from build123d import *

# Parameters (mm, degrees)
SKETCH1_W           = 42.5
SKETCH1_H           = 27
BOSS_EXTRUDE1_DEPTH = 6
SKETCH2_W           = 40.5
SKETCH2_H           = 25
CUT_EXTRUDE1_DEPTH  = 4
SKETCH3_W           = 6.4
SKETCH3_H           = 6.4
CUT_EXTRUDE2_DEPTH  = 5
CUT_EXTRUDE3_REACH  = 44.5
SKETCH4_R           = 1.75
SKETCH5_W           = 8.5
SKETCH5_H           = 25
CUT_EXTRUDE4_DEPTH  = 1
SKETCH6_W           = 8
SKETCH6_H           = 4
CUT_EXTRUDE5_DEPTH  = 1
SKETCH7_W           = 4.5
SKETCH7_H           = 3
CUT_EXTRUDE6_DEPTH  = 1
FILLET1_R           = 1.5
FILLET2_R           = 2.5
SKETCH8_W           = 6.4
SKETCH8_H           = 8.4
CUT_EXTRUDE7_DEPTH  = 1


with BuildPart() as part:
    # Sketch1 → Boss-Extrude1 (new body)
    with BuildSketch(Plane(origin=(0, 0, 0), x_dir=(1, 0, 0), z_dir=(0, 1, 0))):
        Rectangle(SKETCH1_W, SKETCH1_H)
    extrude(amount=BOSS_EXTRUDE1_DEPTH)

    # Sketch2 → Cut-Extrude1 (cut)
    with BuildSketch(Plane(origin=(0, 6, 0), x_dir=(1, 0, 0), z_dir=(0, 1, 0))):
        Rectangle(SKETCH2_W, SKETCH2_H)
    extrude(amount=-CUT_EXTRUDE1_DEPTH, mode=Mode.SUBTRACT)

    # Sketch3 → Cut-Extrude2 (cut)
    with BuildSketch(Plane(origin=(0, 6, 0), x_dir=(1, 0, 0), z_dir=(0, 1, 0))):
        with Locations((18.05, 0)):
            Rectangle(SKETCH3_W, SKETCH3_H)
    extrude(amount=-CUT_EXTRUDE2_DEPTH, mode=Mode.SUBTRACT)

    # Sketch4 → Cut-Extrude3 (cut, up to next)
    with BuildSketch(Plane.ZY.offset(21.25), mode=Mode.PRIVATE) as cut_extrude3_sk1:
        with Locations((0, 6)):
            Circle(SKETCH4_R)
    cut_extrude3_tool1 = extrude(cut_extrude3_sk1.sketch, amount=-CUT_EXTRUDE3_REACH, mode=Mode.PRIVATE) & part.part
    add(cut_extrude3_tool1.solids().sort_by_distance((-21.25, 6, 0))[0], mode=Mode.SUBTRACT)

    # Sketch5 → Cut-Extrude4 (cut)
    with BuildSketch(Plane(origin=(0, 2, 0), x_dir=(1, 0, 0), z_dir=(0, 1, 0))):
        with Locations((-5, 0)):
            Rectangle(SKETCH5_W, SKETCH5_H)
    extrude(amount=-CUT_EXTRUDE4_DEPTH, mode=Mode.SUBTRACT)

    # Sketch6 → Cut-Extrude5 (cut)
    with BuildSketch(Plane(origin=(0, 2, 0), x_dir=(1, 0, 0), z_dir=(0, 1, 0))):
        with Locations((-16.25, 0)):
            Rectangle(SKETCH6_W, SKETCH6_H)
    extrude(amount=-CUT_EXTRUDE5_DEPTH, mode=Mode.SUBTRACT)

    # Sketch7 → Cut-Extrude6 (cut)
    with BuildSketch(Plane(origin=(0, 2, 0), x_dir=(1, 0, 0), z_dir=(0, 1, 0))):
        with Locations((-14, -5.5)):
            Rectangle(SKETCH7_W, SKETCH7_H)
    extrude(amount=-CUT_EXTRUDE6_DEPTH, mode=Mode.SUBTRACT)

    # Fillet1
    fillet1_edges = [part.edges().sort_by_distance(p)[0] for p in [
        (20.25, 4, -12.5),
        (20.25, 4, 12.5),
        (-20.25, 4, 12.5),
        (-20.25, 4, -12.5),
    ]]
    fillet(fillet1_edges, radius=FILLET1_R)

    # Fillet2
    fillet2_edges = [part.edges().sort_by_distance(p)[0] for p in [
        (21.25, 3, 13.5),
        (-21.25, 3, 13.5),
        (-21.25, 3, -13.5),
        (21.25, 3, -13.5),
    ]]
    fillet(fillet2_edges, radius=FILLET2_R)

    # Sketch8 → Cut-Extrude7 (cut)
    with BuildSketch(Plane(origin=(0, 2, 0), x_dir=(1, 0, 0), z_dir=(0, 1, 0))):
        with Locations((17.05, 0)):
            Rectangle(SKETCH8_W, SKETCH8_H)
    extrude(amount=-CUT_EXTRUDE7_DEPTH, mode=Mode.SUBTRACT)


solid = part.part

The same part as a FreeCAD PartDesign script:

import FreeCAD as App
import Part
import Sketcher
from FreeCAD import Vector


def edges_at(feature, points):
    """Names of the edges that pass closest to the given points."""
    edges = feature.Shape.Edges
    near = lambda p: min(range(len(edges)), key=lambda i: edges[i].distToShape(Part.Vertex(*p))[0])
    return sorted({f"Edge{near(p) + 1}" for p in points})


def add_polygon(sketch, points):
    """Adds a closed chain of lines whose ends are joined by coincident constraints."""
    first, n = sketch.GeometryCount, len(points)
    for a, b in zip(points, points[1:] + points[:1]):
        sketch.addGeometry(Part.LineSegment(App.Vector(*a, 0), App.Vector(*b, 0)), False)
    for i in range(n):
        sketch.addConstraint(Sketcher.Constraint("Coincident", first + i, 2, first + (i + 1) % n, 1))

doc = App.newDocument("Part")
body = doc.addObject("PartDesign::Body", "Body")

# Sketch on XZ plane
sketch1 = body.newObject("Sketcher::SketchObject", "Sketch")
sketch1.AttachmentSupport = (doc.getObject("XZ_Plane"), [""])
sketch1.MapMode = "FlatFace"
add_polygon(sketch1, [(-21, -14), (-21, 14), (21, 14), (21, -14)])  # lines 0-3
sketch1.addConstraint(Sketcher.Constraint("Vertical", 0))
sketch1.addConstraint(Sketcher.Constraint("Horizontal", 1))
sketch1.addConstraint(Sketcher.Constraint("Vertical", 2))
sketch1.addConstraint(Sketcher.Constraint("Horizontal", 3))
sketch1.addConstraint(Sketcher.Constraint("Symmetric", 0, 2, 2, 2, -1, 1))
sketch1.addConstraint(Sketcher.Constraint("DistanceY", 0, 1, 0, 2, 27.0))
sketch1.addConstraint(Sketcher.Constraint("DistanceX", 1, 1, 1, 2, 42.5))
pad1 = body.newObject("PartDesign::Pad", "Pad")
pad1.Profile = sketch1
pad1.Length = 6
pad1.Reversed = True

# Sketch on XZ plane
sketch2 = body.newObject("Sketcher::SketchObject", "Sketch001")
sketch2.AttachmentSupport = (doc.getObject("XZ_Plane"), [""])
sketch2.MapMode = "FlatFace"
sketch2.AttachmentOffset = App.Placement(Vector(0, 0, -6), App.Rotation())
add_polygon(sketch2, [(-20, -12), (-20, 12), (20, 12), (20, -12)])  # lines 0-3
sketch2.addConstraint(Sketcher.Constraint("Vertical", 0))
sketch2.addConstraint(Sketcher.Constraint("Horizontal", 1))
sketch2.addConstraint(Sketcher.Constraint("Vertical", 2))
sketch2.addConstraint(Sketcher.Constraint("Horizontal", 3))
sketch2.addConstraint(Sketcher.Constraint("Symmetric", 0, 2, 2, 2, -1, 1))
sketch2.addConstraint(Sketcher.Constraint("DistanceY", 0, 1, 0, 2, 25.0))
sketch2.addConstraint(Sketcher.Constraint("DistanceX", 1, 1, 1, 2, 40.5))
pocket1 = body.newObject("PartDesign::Pocket", "Pocket")
pocket1.Profile = sketch2
pocket1.Length = 4
pocket1.Reversed = True

# Sketch on XZ plane
sketch3 = body.newObject("Sketcher::SketchObject", "Sketch002")
sketch3.AttachmentSupport = (doc.getObject("XZ_Plane"), [""])
sketch3.MapMode = "FlatFace"
sketch3.AttachmentOffset = App.Placement(Vector(0, 0, -6), App.Rotation())
add_polygon(sketch3, [(15, -3), (15, 3), (21, 3), (21, -3)])  # lines 0-3
sketch3.addConstraint(Sketcher.Constraint("Vertical", 0))
sketch3.addConstraint(Sketcher.Constraint("Horizontal", 1))
sketch3.addConstraint(Sketcher.Constraint("Vertical", 2))
sketch3.addConstraint(Sketcher.Constraint("Horizontal", 3))
sketch3.addConstraint(Sketcher.Constraint("Equal", 3, 0))
sketch3.addConstraint(Sketcher.Constraint("DistanceX", 1, 1, 1, 2, 6.4))
sketch3.addConstraint(Sketcher.Constraint("DistanceY", -1, 1, 0, 2, 3.2))
sketch3.addConstraint(Sketcher.Constraint("DistanceX", -1, 1, 0, 2, 14.85))
pocket2 = body.newObject("PartDesign::Pocket", "Pocket001")
pocket2.Profile = sketch3
pocket2.Length = 5
pocket2.Reversed = True

# Sketch on YZ plane
sketch4 = body.newObject("Sketcher::SketchObject", "Sketch003")
sketch4.AttachmentSupport = (doc.getObject("YZ_Plane"), [""])
sketch4.MapMode = "FlatFace"
sketch4.AttachmentOffset = App.Placement(Vector(0, 0, -21.25), App.Rotation())
sketch4.addGeometry(Part.Circle(Vector(6, 0, 0), Vector(0, 0, 1), 1.8), False)
sketch4.addConstraint(Sketcher.Constraint("PointOnObject", 0, 3, -1))
sketch4.addConstraint(Sketcher.Constraint("Diameter", 0, 3.5))
sketch4.addConstraint(Sketcher.Constraint("DistanceX", -1, 1, 0, 3, 6.0))
pocket3 = body.newObject("PartDesign::Pocket", "Pocket002")
pocket3.Profile = sketch4
pocket3.Type = "UpToFirst"
pocket3.Reversed = True

# Sketch on XZ plane
sketch5 = body.newObject("Sketcher::SketchObject", "Sketch004")
sketch5.AttachmentSupport = (doc.getObject("XZ_Plane"), [""])
sketch5.MapMode = "FlatFace"
sketch5.AttachmentOffset = App.Placement(Vector(0, 0, -2), App.Rotation())
add_polygon(sketch5, [(-9, -12), (-9, 12), (-1, 12), (-1, -12)])  # lines 0-3
sketch5.addConstraint(Sketcher.Constraint("Vertical", 0))
sketch5.addConstraint(Sketcher.Constraint("Horizontal", 1))
sketch5.addConstraint(Sketcher.Constraint("Vertical", 2))
sketch5.addConstraint(Sketcher.Constraint("Horizontal", 3))
sketch5.addConstraint(Sketcher.Constraint("DistanceY", 0, 1, 0, 2, 25.0))
sketch5.addConstraint(Sketcher.Constraint("DistanceX", 1, 1, 1, 2, 8.5))
sketch5.addConstraint(Sketcher.Constraint("DistanceY", -1, 1, 0, 2, 12.5))
sketch5.addConstraint(Sketcher.Constraint("DistanceX", 0, 2, -1, 1, 9.25))
pocket4 = body.newObject("PartDesign::Pocket", "Pocket003")
pocket4.Profile = sketch5
pocket4.Length = 1
pocket4.Reversed = True

# Sketch on XZ plane
sketch6 = body.newObject("Sketcher::SketchObject", "Sketch005")
sketch6.AttachmentSupport = (doc.getObject("XZ_Plane"), [""])
sketch6.MapMode = "FlatFace"
sketch6.AttachmentOffset = App.Placement(Vector(0, 0, -2), App.Rotation())
add_polygon(sketch6, [(-20.2, -2), (-20.2, 2), (-12.2, 2), (-12.2, -2)])  # lines 0-3
sketch6.addConstraint(Sketcher.Constraint("Vertical", 0))
sketch6.addConstraint(Sketcher.Constraint("Horizontal", 1))
sketch6.addConstraint(Sketcher.Constraint("Vertical", 2))
sketch6.addConstraint(Sketcher.Constraint("Horizontal", 3))
sketch6.addConstraint(Sketcher.Constraint("DistanceX", 1, 1, 1, 2, 8.0))
sketch6.addConstraint(Sketcher.Constraint("DistanceY", 0, 1, 0, 2, 4.0))
sketch6.addConstraint(Sketcher.Constraint("DistanceY", -1, 1, 0, 2, 2.0))
sketch6.addConstraint(Sketcher.Constraint("DistanceX", 0, 2, -1, 1, 20.25))
pocket5 = body.newObject("PartDesign::Pocket", "Pocket004")
pocket5.Profile = sketch6
pocket5.Length = 1
pocket5.Reversed = True

# Sketch on XZ plane
sketch7 = body.newObject("Sketcher::SketchObject", "Sketch006")
sketch7.AttachmentSupport = (doc.getObject("XZ_Plane"), [""])
sketch7.MapMode = "FlatFace"
sketch7.AttachmentOffset = App.Placement(Vector(0, 0, -2), App.Rotation())
add_polygon(sketch7, [(-16.2, 4), (-16.2, 7), (-11.8, 7), (-11.8, 4)])  # lines 0-3
sketch7.addConstraint(Sketcher.Constraint("Vertical", 0))
sketch7.addConstraint(Sketcher.Constraint("Horizontal", 1))
sketch7.addConstraint(Sketcher.Constraint("Vertical", 2))
sketch7.addConstraint(Sketcher.Constraint("Horizontal", 3))
sketch7.addConstraint(Sketcher.Constraint("DistanceY", 0, 1, 0, 2, 3.0))
sketch7.addConstraint(Sketcher.Constraint("DistanceX", 1, 1, 1, 2, 4.5))
sketch7.addConstraint(Sketcher.Constraint("DistanceY", -1, 1, 0, 2, 7.0))
sketch7.addConstraint(Sketcher.Constraint("DistanceX", 0, 2, -1, 1, 16.25))
pocket6 = body.newObject("PartDesign::Pocket", "Pocket005")
pocket6.Profile = sketch7
pocket6.Length = 1
pocket6.Reversed = True
doc.recompute()

fillet = body.newObject("PartDesign::Fillet", "Fillet")
fillet.Base = (pocket6, edges_at(pocket6, [
    (20.25, 4, -12.5),
    (20.25, 4, 12.5),
    (-20.25, 4, 12.5),
    (-20.25, 4, -12.5),
]))
fillet.Radius = 1.5
doc.recompute()

fillet2 = body.newObject("PartDesign::Fillet", "Fillet001")
fillet2.Base = (fillet, edges_at(fillet, [
    (21.25, 3, 13.5),
    (-21.25, 3, 13.5),
    (-21.25, 3, -13.5),
    (21.25, 3, -13.5),
]))
fillet2.Radius = 2.5

# Sketch on XZ plane
sketch8 = body.newObject("Sketcher::SketchObject", "Sketch007")
sketch8.AttachmentSupport = (doc.getObject("XZ_Plane"), [""])
sketch8.MapMode = "FlatFace"
sketch8.AttachmentOffset = App.Placement(Vector(0, 0, -2), App.Rotation())
add_polygon(sketch8, [(14, -4), (14, 4), (20, 4), (20, -4)])  # lines 0-3
sketch8.addConstraint(Sketcher.Constraint("Vertical", 0))
sketch8.addConstraint(Sketcher.Constraint("Horizontal", 1))
sketch8.addConstraint(Sketcher.Constraint("Vertical", 2))
sketch8.addConstraint(Sketcher.Constraint("Horizontal", 3))
sketch8.addConstraint(Sketcher.Constraint("DistanceX", 1, 1, 1, 2, 6.4))
sketch8.addConstraint(Sketcher.Constraint("DistanceY", 0, 1, 0, 2, 8.4))
sketch8.addConstraint(Sketcher.Constraint("DistanceY", -1, 1, 0, 2, 4.2))
sketch8.addConstraint(Sketcher.Constraint("DistanceX", -1, 1, 0, 2, 13.85))
pocket7 = body.newObject("PartDesign::Pocket", "Pocket006")
pocket7.Profile = sketch8
pocket7.Length = 1
pocket7.Reversed = True

doc.recompute()
